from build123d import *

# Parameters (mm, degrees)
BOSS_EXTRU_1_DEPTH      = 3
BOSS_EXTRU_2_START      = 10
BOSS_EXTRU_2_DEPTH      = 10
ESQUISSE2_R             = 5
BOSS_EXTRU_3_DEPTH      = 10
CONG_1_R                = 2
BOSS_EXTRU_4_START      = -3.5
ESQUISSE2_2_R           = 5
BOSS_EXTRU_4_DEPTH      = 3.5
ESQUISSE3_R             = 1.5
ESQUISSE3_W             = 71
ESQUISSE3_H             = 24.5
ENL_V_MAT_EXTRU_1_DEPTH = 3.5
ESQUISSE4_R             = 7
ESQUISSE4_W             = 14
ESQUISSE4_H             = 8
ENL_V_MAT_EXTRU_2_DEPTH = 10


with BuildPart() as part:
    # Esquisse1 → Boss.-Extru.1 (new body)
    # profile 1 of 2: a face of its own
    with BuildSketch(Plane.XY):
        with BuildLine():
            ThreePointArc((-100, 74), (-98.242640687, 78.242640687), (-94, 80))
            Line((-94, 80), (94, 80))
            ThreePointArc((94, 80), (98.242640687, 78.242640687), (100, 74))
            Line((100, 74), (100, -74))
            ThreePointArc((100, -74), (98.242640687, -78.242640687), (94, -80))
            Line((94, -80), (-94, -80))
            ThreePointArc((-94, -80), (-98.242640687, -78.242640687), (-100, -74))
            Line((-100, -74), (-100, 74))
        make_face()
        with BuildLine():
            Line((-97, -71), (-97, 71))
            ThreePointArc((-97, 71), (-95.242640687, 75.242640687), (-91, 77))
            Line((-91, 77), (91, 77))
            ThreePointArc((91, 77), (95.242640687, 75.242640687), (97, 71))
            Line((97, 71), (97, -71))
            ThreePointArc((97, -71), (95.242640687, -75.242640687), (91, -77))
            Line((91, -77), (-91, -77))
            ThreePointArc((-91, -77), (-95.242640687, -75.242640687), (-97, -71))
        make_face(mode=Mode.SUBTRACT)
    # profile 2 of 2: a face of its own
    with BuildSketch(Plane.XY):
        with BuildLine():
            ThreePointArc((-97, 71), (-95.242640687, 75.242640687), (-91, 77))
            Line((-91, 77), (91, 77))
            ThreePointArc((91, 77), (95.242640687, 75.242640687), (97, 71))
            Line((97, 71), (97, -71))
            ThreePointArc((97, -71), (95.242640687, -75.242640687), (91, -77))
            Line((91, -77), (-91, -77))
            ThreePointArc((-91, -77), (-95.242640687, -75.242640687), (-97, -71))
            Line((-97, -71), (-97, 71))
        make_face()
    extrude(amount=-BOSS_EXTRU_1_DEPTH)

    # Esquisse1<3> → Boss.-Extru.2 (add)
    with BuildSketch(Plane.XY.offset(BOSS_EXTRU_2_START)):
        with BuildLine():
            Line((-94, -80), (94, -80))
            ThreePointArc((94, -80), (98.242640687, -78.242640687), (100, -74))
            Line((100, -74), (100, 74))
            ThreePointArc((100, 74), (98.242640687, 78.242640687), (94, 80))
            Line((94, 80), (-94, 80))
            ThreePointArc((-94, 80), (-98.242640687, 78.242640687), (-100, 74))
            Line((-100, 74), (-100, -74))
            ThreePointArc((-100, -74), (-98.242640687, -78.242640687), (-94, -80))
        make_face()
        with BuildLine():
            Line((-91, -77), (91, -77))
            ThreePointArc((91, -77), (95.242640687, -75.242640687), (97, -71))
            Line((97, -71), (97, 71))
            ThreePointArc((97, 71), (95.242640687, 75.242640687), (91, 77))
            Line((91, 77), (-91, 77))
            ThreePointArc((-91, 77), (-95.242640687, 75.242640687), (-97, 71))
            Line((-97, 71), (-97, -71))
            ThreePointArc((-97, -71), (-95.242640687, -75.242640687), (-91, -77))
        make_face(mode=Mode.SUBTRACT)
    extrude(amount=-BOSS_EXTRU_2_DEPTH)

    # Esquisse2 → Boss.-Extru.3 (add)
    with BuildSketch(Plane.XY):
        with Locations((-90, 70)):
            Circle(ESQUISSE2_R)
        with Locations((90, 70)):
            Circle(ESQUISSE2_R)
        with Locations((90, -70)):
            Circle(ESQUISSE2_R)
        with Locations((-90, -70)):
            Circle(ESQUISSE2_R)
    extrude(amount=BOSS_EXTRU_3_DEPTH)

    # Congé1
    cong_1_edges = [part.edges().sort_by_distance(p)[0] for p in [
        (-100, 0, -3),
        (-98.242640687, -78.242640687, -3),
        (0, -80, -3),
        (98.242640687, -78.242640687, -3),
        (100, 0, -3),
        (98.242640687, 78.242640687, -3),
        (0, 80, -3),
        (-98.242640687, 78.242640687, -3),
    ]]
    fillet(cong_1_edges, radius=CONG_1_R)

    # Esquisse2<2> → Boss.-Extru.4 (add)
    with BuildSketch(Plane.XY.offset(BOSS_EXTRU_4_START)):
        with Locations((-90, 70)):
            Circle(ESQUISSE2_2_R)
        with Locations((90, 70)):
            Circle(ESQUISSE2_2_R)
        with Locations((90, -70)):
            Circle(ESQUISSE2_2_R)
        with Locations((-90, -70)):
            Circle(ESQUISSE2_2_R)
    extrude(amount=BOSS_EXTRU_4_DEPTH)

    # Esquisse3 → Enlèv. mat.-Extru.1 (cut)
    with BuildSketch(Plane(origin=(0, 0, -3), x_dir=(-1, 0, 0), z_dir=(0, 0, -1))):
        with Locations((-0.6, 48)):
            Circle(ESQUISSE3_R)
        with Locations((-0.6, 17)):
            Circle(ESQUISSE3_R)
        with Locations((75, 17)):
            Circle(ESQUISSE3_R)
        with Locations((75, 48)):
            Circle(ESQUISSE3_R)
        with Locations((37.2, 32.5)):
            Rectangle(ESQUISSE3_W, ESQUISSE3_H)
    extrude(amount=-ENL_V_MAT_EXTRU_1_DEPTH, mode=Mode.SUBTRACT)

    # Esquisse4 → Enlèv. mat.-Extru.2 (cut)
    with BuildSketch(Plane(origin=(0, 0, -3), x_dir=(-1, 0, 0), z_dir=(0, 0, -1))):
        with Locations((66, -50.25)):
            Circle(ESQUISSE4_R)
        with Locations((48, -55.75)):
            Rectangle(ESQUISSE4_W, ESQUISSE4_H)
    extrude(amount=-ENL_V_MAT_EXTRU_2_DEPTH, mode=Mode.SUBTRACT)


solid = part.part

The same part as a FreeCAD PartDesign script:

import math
import FreeCAD as App
import Part
import Sketcher
from FreeCAD import Vector


def edges_at(feature, points):
    """Names of the edges that pass closest to the given points."""
    edges = feature.Shape.Edges
    near = lambda p: min(range(len(edges)), key=lambda i: edges[i].distToShape(Part.Vertex(*p))[0])
    return sorted({f"Edge{near(p) + 1}" for p in points})

doc = App.newDocument("Part")
body = doc.addObject("PartDesign::Body", "Body")

sketch1 = body.newObject("Sketcher::SketchObject", "Sketch")
sketch1.AttachmentSupport = (doc.getObject("XY_Plane"), [""])
sketch1.MapMode = "FlatFace"
sketch1.addGeometry([
    Part.ArcOfCircle(Part.Circle(Vector(-94, 74, 0), Vector(0, 0, 1), 6), math.radians(90), math.radians(180)),
    Part.LineSegment(Vector(-100, 74, 0), Vector(-100, -74, 0)),
    Part.ArcOfCircle(Part.Circle(Vector(-94, -74, 0), Vector(0, 0, 1), 6), math.radians(180), math.radians(270)),
    Part.LineSegment(Vector(-94, -80, 0), Vector(94, -80, 0)),
    Part.ArcOfCircle(Part.Circle(Vector(94, -74, 0), Vector(0, 0, 1), 6), math.radians(-90), math.radians(0)),
    Part.LineSegment(Vector(100, -74, 0), Vector(100, 74, 0)),
    Part.ArcOfCircle(Part.Circle(Vector(94, 74, 0), Vector(0, 0, 1), 6), math.radians(0), math.radians(90)),
    Part.LineSegment(Vector(94, 80, 0), Vector(-94, 80, 0)),
], False)
sketch1.addConstraint([
    Sketcher.Constraint("Tangent", 0, 2, 1, 1),
    Sketcher.Constraint("Tangent", 1, 2, 2, 1),
    Sketcher.Constraint("Tangent", 2, 2, 3, 1),
    Sketcher.Constraint("Tangent", 3, 2, 4, 1),
    Sketcher.Constraint("Tangent", 4, 2, 5, 1),
    Sketcher.Constraint("Tangent", 5, 2, 6, 1),
    Sketcher.Constraint("Tangent", 6, 2, 7, 1),
    Sketcher.Constraint("Tangent", 7, 2, 0, 1),
    Sketcher.Constraint("Vertical", 1),
    Sketcher.Constraint("Horizontal", 3),
    Sketcher.Constraint("Vertical", 5),
    Sketcher.Constraint("Horizontal", 7),
    Sketcher.Constraint("Equal", 0, 2),
    Sketcher.Constraint("Equal", 2, 4),
    Sketcher.Constraint("Equal", 4, 6),
    Sketcher.Constraint("Symmetric", 0, 3, 4, 3, -1, 1),
    Sketcher.Constraint("Radius", 0, 6.0),
    Sketcher.Constraint("DistanceX", 3, 1, 3, 2, 188.0),
    Sketcher.Constraint("DistanceY", 1, 2, 1, 1, 148.0),
])
pad1 = body.newObject("PartDesign::Pad", "Pad")
pad1.Profile = sketch1
pad1.Length = 3
pad1.Reversed = True

sketch2 = body.newObject("Sketcher::SketchObject", "Sketch001")
sketch2.AttachmentSupport = (doc.getObject("XY_Plane"), [""])
sketch2.MapMode = "FlatFace"
sketch2.AttachmentOffset = App.Placement(Vector(0, 0, 10), App.Rotation())
sketch2.addGeometry([
    Part.LineSegment(Vector(-94, -80, 0), Vector(94, -80, 0)),
    Part.ArcOfCircle(Part.Circle(Vector(94, -74, 0), Vector(0, 0, 1), 6), math.radians(-90), math.radians(0)),
    Part.LineSegment(Vector(100, -74, 0), Vector(100, 74, 0)),
    Part.ArcOfCircle(Part.Circle(Vector(94, 74, 0), Vector(0, 0, 1), 6), math.radians(0), math.radians(90)),
    Part.LineSegment(Vector(94, 80, 0), Vector(-94, 80, 0)),
    Part.ArcOfCircle(Part.Circle(Vector(-94, 74, 0), Vector(0, 0, 1), 6), math.radians(90), math.radians(180)),
    Part.LineSegment(Vector(-100, 74, 0), Vector(-100, -74, 0)),
    Part.ArcOfCircle(Part.Circle(Vector(-94, -74, 0), Vector(0, 0, 1), 6), math.radians(180), math.radians(270)),
    Part.LineSegment(Vector(91, -77, 0), Vector(-91, -77, 0)),
    Part.ArcOfCircle(Part.Circle(Vector(-91, -71, 0), Vector(0, 0, 1), 6), math.radians(180), math.radians(270)),
    Part.LineSegment(Vector(-97, -71, 0), Vector(-97, 71, 0)),
    Part.ArcOfCircle(Part.Circle(Vector(-91, 71, 0), Vector(0, 0, 1), 6), math.radians(90), math.radians(180)),
    Part.LineSegment(Vector(-91, 77, 0), Vector(91, 77, 0)),
    Part.ArcOfCircle(Part.Circle(Vector(91, 71, 0), Vector(0, 0, 1), 6), math.radians(0), math.radians(90)),
    Part.LineSegment(Vector(97, 71, 0), Vector(97, -71, 0)),
    Part.ArcOfCircle(Part.Circle(Vector(91, -71, 0), Vector(0, 0, 1), 6), math.radians(-90), math.radians(0)),
], False)
sketch2.addConstraint([
    Sketcher.Constraint("Tangent", 0, 2, 1, 1),
    Sketcher.Constraint("Tangent", 1, 2, 2, 1),
    Sketcher.Constraint("Tangent", 2, 2, 3, 1),
    Sketcher.Constraint("Tangent", 3, 2, 4, 1),
    Sketcher.Constraint("Tangent", 4, 2, 5, 1),
    Sketcher.Constraint("Tangent", 5, 2, 6, 1),
    Sketcher.Constraint("Tangent", 6, 2, 7, 1),
    Sketcher.Constraint("Tangent", 7, 2, 0, 1),
    Sketcher.Constraint("Tangent", 8, 2, 9, 2),
    Sketcher.Constraint("Tangent", 9, 1, 10, 1),
    Sketcher.Constraint("Tangent", 10, 2, 11, 2),
    Sketcher.Constraint("Tangent", 11, 1, 12, 1),
    Sketcher.Constraint("Tangent", 12, 2, 13, 2),
    Sketcher.Constraint("Tangent", 13, 1, 14, 1),
    Sketcher.Constraint("Tangent", 14, 2, 15, 2),
    Sketcher.Constraint("Tangent", 15, 1, 8, 1),
    Sketcher.Constraint("Horizontal", 0),
    Sketcher.Constraint("Vertical", 2),
    Sketcher.Constraint("Horizontal", 4),
    Sketcher.Constraint("Vertical", 6),
    Sketcher.Constraint("Horizontal", 8),
    Sketcher.Constraint("Vertical", 10),
    Sketcher.Constraint("Horizontal", 12),
    Sketcher.Constraint("Vertical", 14),
    Sketcher.Constraint("Equal", 1, 3),
    Sketcher.Constraint("Equal", 3, 5),
    Sketcher.Constraint("Equal", 5, 7),
    Sketcher.Constraint("Equal", 7, 9),
    Sketcher.Constraint("Equal", 9, 11),
    Sketcher.Constraint("Equal", 11, 13),
    Sketcher.Constraint("Equal", 13, 15),
    Sketcher.Constraint("Symmetric", 1, 3, 5, 3, -1, 1),
    Sketcher.Constraint("Symmetric", 9, 3, 13, 3, -1, 1),
    Sketcher.Constraint("Radius", 1, 6.0),
    Sketcher.Constraint("DistanceX", 0, 1, 0, 2, 188.0),
    Sketcher.Constraint("DistanceX", 8, 2, 8, 1, 182.0),
    Sketcher.Constraint("DistanceY", 2, 1, 2, 2, 148.0),
    Sketcher.Constraint("DistanceY", 10, 1, 10, 2, 142.0),
])
pad2 = body.newObject("PartDesign::Pad", "Pad001")
pad2.Profile = sketch2
pad2.Length = 10
pad2.Reversed = True

sketch3 = body.newObject("Sketcher::SketchObject", "Sketch002")
sketch3.AttachmentSupport = (doc.getObject("XY_Plane"), [""])
sketch3.MapMode = "FlatFace"
sketch3.addGeometry([
    Part.Circle(Vector(-90, 70, 0), Vector(0, 0, 1), 5),
    Part.Circle(Vector(90, 70, 0), Vector(0, 0, 1), 5),
    Part.Circle(Vector(90, -70, 0), Vector(0, 0, 1), 5),
    Part.Circle(Vector(-90, -70, 0), Vector(0, 0, 1), 5),
], False)
sketch3.addConstraint([
    Sketcher.Constraint("Equal", 0, 1),
    Sketcher.Constraint("Equal", 1, 2),
    Sketcher.Constraint("Equal", 2, 3),
    Sketcher.Constraint("Symmetric", 0, 3, 2, 3, -1, 1),
    Sketcher.Constraint("Symmetric", 1, 3, 3, 3, -1, 1),
    Sketcher.Constraint("Symmetric", 0, 3, 1, 3, -2),
    Sketcher.Constraint("Diameter", 0, 10.0),
    Sketcher.Constraint("DistanceX", 0, 3, -1, 1, 90.0),
    Sketcher.Constraint("DistanceY", -1, 1, 0, 3, 70.0),
])
pad3 = body.newObject("PartDesign::Pad", "Pad002")
pad3.Profile = sketch3
pad3.Length = 10
doc.recompute()

fillet = body.newObject("PartDesign::Fillet", "Fillet")
fillet.Base = (pad3, edges_at(pad3, [
    (-100, 0, -3),
    (-98.243, -78.243, -3),
    (0, -80, -3),
    (98.243, -78.243, -3),
    (100, 0, -3),
    (98.243, 78.243, -3),
    (0, 80, -3),
    (-98.243, 78.243, -3),
]))
fillet.Radius = 2

sketch4 = body.newObject("Sketcher::SketchObject", "Sketch003")
sketch4.AttachmentSupport = (doc.getObject("XY_Plane"), [""])
sketch4.MapMode = "FlatFace"
sketch4.AttachmentOffset = App.Placement(Vector(0, 0, -3.5), App.Rotation())
sketch4.addGeometry([
    Part.Circle(Vector(-90, 70, 0), Vector(0, 0, 1), 5),
    Part.Circle(Vector(90, 70, 0), Vector(0, 0, 1), 5),
    Part.Circle(Vector(90, -70, 0), Vector(0, 0, 1), 5),
    Part.Circle(Vector(-90, -70, 0), Vector(0, 0, 1), 5),
], False)
sketch4.addConstraint([
    Sketcher.Constraint("Equal", 0, 1),
    Sketcher.Constraint("Equal", 1, 2),
    Sketcher.Constraint("Equal", 2, 3),
    Sketcher.Constraint("Symmetric", 0, 3, 2, 3, -1, 1),
    Sketcher.Constraint("Symmetric", 1, 3, 3, 3, -1, 1),
    Sketcher.Constraint("Symmetric", 0, 3, 1, 3, -2),
    Sketcher.Constraint("Diameter", 0, 10.0),
    Sketcher.Constraint("DistanceX", 0, 3, -1, 1, 90.0),
    Sketcher.Constraint("DistanceY", -1, 1, 0, 3, 70.0),
])
pad4 = body.newObject("PartDesign::Pad", "Pad003")
pad4.Profile = sketch4
pad4.Length = 3.5

sketch5 = body.newObject("Sketcher::SketchObject", "Sketch004")
sketch5.AttachmentSupport = (doc.getObject("XY_Plane"), [""])
sketch5.MapMode = "FlatFace"
sketch5.AttachmentOffset = App.Placement(Vector(0, 0, -3), App.Rotation())
sketch5.addGeometry([
    Part.Circle(Vector(0.6, 48, 0), Vector(0, 0, 1), 1.5),
    Part.Circle(Vector(0.6, 17, 0), Vector(0, 0, 1), 1.5),
    Part.Circle(Vector(-75, 17, 0), Vector(0, 0, 1), 1.5),
    Part.Circle(Vector(-75, 48, 0), Vector(0, 0, 1), 1.5),
    Part.LineSegment(Vector(-1.7, 44.8, 0), Vector(-1.7, 20.2, 0)),
    Part.LineSegment(Vector(-1.7, 20.2, 0), Vector(-72.7, 20.2, 0)),
    Part.LineSegment(Vector(-72.7, 20.2, 0), Vector(-72.7, 44.8, 0)),
    Part.LineSegment(Vector(-72.7, 44.8, 0), Vector(-1.7, 44.8, 0)),
], False)
sketch5.addConstraint([
    Sketcher.Constraint("Coincident", 4, 2, 5, 1),
    Sketcher.Constraint("Coincident", 5, 2, 6, 1),
    Sketcher.Constraint("Coincident", 6, 2, 7, 1),
    Sketcher.Constraint("Coincident", 7, 2, 4, 1),
    Sketcher.Constraint("Vertical", 4),
    Sketcher.Constraint("Horizontal", 5),
    Sketcher.Constraint("Vertical", 6),
    Sketcher.Constraint("Horizontal", 7),
    Sketcher.Constraint("Equal", 0, 1),
    Sketcher.Constraint("Equal", 1, 2),
    Sketcher.Constraint("Equal", 2, 3),
    Sketcher.Constraint("Horizontal", 1, 3, 2, 3),
    Sketcher.Constraint("Horizontal", 0, 3, 3, 3),
    Sketcher.Constraint("Vertical", 0, 3, 1, 3),
    Sketcher.Constraint("Vertical", 2, 3, 3, 3),
    Sketcher.Constraint("Diameter", 0, 3.0),
    Sketcher.Constraint("DistanceX", 5, 2, 5, 1, 71.0),
    Sketcher.Constraint("DistanceY", 4, 2, 4, 1, 24.5),
    Sketcher.Constraint("DistanceY", -1, 1, 0, 3, 48.0),
    Sketcher.Constraint("DistanceY", -1, 1, 1, 3, 17.0),
    Sketcher.Constraint("DistanceX", 2, 3, -1, 1, 75.0),
    Sketcher.Constraint("DistanceX", -1, 1, 0, 3, 0.6),
    Sketcher.Constraint("DistanceX", 4, 2, -1, 1, 1.7),
    Sketcher.Constraint("DistanceY", -1, 1, 4, 2, 20.25),
])
pocket1 = body.newObject("PartDesign::Pocket", "Pocket")
pocket1.Profile = sketch5
pocket1.Length = 3.5
pocket1.Reversed = True

sketch6 = body.newObject("Sketcher::SketchObject", "Sketch005")
sketch6.AttachmentSupport = (doc.getObject("XY_Plane"), [""])
sketch6.MapMode = "FlatFace"
sketch6.AttachmentOffset = App.Placement(Vector(0, 0, -3), App.Rotation())
sketch6.addGeometry([
    Part.Circle(Vector(-66, -50, 0), Vector(0, 0, 1), 7),
    Part.LineSegment(Vector(-41, -52, 0), Vector(-41, -60, 0)),
    Part.LineSegment(Vector(-41, -60, 0), Vector(-55, -60, 0)),
    Part.LineSegment(Vector(-55, -60, 0), Vector(-55, -52, 0)),
    Part.LineSegment(Vector(-55, -52, 0), Vector(-41, -52, 0)),
], False)
sketch6.addConstraint([
    Sketcher.Constraint("Coincident", 1, 2, 2, 1),
    Sketcher.Constraint("Coincident", 2, 2, 3, 1),
    Sketcher.Constraint("Coincident", 3, 2, 4, 1),
    Sketcher.Constraint("Coincident", 4, 2, 1, 1),
    Sketcher.Constraint("Vertical", 1),
    Sketcher.Constraint("Horizontal", 2),
    Sketcher.Constraint("Vertical", 3),
    Sketcher.Constraint("Horizontal", 4),
    Sketcher.Constraint("Diameter", 0, 14.0),
    Sketcher.Constraint("DistanceX", 2, 2, 2, 1, 14.0),
    Sketcher.Constraint("DistanceY", 1, 2, 1, 1, 8.0),
    Sketcher.Constraint("DistanceX", 0, 3, -1, 1, 66.0),
    Sketcher.Constraint("DistanceX", 1, 2, -1, 1, 41.0),
    Sketcher.Constraint("DistanceY", 1, 2, 0, 3, 9.5),
    Sketcher.Constraint("DistanceY", 0, 3, -1, 1, 50.25),
])
pocket2 = body.newObject("PartDesign::Pocket", "Pocket001")
pocket2.Profile = sketch6
pocket2.Length = 10
pocket2.Reversed = True

doc.recompute()
